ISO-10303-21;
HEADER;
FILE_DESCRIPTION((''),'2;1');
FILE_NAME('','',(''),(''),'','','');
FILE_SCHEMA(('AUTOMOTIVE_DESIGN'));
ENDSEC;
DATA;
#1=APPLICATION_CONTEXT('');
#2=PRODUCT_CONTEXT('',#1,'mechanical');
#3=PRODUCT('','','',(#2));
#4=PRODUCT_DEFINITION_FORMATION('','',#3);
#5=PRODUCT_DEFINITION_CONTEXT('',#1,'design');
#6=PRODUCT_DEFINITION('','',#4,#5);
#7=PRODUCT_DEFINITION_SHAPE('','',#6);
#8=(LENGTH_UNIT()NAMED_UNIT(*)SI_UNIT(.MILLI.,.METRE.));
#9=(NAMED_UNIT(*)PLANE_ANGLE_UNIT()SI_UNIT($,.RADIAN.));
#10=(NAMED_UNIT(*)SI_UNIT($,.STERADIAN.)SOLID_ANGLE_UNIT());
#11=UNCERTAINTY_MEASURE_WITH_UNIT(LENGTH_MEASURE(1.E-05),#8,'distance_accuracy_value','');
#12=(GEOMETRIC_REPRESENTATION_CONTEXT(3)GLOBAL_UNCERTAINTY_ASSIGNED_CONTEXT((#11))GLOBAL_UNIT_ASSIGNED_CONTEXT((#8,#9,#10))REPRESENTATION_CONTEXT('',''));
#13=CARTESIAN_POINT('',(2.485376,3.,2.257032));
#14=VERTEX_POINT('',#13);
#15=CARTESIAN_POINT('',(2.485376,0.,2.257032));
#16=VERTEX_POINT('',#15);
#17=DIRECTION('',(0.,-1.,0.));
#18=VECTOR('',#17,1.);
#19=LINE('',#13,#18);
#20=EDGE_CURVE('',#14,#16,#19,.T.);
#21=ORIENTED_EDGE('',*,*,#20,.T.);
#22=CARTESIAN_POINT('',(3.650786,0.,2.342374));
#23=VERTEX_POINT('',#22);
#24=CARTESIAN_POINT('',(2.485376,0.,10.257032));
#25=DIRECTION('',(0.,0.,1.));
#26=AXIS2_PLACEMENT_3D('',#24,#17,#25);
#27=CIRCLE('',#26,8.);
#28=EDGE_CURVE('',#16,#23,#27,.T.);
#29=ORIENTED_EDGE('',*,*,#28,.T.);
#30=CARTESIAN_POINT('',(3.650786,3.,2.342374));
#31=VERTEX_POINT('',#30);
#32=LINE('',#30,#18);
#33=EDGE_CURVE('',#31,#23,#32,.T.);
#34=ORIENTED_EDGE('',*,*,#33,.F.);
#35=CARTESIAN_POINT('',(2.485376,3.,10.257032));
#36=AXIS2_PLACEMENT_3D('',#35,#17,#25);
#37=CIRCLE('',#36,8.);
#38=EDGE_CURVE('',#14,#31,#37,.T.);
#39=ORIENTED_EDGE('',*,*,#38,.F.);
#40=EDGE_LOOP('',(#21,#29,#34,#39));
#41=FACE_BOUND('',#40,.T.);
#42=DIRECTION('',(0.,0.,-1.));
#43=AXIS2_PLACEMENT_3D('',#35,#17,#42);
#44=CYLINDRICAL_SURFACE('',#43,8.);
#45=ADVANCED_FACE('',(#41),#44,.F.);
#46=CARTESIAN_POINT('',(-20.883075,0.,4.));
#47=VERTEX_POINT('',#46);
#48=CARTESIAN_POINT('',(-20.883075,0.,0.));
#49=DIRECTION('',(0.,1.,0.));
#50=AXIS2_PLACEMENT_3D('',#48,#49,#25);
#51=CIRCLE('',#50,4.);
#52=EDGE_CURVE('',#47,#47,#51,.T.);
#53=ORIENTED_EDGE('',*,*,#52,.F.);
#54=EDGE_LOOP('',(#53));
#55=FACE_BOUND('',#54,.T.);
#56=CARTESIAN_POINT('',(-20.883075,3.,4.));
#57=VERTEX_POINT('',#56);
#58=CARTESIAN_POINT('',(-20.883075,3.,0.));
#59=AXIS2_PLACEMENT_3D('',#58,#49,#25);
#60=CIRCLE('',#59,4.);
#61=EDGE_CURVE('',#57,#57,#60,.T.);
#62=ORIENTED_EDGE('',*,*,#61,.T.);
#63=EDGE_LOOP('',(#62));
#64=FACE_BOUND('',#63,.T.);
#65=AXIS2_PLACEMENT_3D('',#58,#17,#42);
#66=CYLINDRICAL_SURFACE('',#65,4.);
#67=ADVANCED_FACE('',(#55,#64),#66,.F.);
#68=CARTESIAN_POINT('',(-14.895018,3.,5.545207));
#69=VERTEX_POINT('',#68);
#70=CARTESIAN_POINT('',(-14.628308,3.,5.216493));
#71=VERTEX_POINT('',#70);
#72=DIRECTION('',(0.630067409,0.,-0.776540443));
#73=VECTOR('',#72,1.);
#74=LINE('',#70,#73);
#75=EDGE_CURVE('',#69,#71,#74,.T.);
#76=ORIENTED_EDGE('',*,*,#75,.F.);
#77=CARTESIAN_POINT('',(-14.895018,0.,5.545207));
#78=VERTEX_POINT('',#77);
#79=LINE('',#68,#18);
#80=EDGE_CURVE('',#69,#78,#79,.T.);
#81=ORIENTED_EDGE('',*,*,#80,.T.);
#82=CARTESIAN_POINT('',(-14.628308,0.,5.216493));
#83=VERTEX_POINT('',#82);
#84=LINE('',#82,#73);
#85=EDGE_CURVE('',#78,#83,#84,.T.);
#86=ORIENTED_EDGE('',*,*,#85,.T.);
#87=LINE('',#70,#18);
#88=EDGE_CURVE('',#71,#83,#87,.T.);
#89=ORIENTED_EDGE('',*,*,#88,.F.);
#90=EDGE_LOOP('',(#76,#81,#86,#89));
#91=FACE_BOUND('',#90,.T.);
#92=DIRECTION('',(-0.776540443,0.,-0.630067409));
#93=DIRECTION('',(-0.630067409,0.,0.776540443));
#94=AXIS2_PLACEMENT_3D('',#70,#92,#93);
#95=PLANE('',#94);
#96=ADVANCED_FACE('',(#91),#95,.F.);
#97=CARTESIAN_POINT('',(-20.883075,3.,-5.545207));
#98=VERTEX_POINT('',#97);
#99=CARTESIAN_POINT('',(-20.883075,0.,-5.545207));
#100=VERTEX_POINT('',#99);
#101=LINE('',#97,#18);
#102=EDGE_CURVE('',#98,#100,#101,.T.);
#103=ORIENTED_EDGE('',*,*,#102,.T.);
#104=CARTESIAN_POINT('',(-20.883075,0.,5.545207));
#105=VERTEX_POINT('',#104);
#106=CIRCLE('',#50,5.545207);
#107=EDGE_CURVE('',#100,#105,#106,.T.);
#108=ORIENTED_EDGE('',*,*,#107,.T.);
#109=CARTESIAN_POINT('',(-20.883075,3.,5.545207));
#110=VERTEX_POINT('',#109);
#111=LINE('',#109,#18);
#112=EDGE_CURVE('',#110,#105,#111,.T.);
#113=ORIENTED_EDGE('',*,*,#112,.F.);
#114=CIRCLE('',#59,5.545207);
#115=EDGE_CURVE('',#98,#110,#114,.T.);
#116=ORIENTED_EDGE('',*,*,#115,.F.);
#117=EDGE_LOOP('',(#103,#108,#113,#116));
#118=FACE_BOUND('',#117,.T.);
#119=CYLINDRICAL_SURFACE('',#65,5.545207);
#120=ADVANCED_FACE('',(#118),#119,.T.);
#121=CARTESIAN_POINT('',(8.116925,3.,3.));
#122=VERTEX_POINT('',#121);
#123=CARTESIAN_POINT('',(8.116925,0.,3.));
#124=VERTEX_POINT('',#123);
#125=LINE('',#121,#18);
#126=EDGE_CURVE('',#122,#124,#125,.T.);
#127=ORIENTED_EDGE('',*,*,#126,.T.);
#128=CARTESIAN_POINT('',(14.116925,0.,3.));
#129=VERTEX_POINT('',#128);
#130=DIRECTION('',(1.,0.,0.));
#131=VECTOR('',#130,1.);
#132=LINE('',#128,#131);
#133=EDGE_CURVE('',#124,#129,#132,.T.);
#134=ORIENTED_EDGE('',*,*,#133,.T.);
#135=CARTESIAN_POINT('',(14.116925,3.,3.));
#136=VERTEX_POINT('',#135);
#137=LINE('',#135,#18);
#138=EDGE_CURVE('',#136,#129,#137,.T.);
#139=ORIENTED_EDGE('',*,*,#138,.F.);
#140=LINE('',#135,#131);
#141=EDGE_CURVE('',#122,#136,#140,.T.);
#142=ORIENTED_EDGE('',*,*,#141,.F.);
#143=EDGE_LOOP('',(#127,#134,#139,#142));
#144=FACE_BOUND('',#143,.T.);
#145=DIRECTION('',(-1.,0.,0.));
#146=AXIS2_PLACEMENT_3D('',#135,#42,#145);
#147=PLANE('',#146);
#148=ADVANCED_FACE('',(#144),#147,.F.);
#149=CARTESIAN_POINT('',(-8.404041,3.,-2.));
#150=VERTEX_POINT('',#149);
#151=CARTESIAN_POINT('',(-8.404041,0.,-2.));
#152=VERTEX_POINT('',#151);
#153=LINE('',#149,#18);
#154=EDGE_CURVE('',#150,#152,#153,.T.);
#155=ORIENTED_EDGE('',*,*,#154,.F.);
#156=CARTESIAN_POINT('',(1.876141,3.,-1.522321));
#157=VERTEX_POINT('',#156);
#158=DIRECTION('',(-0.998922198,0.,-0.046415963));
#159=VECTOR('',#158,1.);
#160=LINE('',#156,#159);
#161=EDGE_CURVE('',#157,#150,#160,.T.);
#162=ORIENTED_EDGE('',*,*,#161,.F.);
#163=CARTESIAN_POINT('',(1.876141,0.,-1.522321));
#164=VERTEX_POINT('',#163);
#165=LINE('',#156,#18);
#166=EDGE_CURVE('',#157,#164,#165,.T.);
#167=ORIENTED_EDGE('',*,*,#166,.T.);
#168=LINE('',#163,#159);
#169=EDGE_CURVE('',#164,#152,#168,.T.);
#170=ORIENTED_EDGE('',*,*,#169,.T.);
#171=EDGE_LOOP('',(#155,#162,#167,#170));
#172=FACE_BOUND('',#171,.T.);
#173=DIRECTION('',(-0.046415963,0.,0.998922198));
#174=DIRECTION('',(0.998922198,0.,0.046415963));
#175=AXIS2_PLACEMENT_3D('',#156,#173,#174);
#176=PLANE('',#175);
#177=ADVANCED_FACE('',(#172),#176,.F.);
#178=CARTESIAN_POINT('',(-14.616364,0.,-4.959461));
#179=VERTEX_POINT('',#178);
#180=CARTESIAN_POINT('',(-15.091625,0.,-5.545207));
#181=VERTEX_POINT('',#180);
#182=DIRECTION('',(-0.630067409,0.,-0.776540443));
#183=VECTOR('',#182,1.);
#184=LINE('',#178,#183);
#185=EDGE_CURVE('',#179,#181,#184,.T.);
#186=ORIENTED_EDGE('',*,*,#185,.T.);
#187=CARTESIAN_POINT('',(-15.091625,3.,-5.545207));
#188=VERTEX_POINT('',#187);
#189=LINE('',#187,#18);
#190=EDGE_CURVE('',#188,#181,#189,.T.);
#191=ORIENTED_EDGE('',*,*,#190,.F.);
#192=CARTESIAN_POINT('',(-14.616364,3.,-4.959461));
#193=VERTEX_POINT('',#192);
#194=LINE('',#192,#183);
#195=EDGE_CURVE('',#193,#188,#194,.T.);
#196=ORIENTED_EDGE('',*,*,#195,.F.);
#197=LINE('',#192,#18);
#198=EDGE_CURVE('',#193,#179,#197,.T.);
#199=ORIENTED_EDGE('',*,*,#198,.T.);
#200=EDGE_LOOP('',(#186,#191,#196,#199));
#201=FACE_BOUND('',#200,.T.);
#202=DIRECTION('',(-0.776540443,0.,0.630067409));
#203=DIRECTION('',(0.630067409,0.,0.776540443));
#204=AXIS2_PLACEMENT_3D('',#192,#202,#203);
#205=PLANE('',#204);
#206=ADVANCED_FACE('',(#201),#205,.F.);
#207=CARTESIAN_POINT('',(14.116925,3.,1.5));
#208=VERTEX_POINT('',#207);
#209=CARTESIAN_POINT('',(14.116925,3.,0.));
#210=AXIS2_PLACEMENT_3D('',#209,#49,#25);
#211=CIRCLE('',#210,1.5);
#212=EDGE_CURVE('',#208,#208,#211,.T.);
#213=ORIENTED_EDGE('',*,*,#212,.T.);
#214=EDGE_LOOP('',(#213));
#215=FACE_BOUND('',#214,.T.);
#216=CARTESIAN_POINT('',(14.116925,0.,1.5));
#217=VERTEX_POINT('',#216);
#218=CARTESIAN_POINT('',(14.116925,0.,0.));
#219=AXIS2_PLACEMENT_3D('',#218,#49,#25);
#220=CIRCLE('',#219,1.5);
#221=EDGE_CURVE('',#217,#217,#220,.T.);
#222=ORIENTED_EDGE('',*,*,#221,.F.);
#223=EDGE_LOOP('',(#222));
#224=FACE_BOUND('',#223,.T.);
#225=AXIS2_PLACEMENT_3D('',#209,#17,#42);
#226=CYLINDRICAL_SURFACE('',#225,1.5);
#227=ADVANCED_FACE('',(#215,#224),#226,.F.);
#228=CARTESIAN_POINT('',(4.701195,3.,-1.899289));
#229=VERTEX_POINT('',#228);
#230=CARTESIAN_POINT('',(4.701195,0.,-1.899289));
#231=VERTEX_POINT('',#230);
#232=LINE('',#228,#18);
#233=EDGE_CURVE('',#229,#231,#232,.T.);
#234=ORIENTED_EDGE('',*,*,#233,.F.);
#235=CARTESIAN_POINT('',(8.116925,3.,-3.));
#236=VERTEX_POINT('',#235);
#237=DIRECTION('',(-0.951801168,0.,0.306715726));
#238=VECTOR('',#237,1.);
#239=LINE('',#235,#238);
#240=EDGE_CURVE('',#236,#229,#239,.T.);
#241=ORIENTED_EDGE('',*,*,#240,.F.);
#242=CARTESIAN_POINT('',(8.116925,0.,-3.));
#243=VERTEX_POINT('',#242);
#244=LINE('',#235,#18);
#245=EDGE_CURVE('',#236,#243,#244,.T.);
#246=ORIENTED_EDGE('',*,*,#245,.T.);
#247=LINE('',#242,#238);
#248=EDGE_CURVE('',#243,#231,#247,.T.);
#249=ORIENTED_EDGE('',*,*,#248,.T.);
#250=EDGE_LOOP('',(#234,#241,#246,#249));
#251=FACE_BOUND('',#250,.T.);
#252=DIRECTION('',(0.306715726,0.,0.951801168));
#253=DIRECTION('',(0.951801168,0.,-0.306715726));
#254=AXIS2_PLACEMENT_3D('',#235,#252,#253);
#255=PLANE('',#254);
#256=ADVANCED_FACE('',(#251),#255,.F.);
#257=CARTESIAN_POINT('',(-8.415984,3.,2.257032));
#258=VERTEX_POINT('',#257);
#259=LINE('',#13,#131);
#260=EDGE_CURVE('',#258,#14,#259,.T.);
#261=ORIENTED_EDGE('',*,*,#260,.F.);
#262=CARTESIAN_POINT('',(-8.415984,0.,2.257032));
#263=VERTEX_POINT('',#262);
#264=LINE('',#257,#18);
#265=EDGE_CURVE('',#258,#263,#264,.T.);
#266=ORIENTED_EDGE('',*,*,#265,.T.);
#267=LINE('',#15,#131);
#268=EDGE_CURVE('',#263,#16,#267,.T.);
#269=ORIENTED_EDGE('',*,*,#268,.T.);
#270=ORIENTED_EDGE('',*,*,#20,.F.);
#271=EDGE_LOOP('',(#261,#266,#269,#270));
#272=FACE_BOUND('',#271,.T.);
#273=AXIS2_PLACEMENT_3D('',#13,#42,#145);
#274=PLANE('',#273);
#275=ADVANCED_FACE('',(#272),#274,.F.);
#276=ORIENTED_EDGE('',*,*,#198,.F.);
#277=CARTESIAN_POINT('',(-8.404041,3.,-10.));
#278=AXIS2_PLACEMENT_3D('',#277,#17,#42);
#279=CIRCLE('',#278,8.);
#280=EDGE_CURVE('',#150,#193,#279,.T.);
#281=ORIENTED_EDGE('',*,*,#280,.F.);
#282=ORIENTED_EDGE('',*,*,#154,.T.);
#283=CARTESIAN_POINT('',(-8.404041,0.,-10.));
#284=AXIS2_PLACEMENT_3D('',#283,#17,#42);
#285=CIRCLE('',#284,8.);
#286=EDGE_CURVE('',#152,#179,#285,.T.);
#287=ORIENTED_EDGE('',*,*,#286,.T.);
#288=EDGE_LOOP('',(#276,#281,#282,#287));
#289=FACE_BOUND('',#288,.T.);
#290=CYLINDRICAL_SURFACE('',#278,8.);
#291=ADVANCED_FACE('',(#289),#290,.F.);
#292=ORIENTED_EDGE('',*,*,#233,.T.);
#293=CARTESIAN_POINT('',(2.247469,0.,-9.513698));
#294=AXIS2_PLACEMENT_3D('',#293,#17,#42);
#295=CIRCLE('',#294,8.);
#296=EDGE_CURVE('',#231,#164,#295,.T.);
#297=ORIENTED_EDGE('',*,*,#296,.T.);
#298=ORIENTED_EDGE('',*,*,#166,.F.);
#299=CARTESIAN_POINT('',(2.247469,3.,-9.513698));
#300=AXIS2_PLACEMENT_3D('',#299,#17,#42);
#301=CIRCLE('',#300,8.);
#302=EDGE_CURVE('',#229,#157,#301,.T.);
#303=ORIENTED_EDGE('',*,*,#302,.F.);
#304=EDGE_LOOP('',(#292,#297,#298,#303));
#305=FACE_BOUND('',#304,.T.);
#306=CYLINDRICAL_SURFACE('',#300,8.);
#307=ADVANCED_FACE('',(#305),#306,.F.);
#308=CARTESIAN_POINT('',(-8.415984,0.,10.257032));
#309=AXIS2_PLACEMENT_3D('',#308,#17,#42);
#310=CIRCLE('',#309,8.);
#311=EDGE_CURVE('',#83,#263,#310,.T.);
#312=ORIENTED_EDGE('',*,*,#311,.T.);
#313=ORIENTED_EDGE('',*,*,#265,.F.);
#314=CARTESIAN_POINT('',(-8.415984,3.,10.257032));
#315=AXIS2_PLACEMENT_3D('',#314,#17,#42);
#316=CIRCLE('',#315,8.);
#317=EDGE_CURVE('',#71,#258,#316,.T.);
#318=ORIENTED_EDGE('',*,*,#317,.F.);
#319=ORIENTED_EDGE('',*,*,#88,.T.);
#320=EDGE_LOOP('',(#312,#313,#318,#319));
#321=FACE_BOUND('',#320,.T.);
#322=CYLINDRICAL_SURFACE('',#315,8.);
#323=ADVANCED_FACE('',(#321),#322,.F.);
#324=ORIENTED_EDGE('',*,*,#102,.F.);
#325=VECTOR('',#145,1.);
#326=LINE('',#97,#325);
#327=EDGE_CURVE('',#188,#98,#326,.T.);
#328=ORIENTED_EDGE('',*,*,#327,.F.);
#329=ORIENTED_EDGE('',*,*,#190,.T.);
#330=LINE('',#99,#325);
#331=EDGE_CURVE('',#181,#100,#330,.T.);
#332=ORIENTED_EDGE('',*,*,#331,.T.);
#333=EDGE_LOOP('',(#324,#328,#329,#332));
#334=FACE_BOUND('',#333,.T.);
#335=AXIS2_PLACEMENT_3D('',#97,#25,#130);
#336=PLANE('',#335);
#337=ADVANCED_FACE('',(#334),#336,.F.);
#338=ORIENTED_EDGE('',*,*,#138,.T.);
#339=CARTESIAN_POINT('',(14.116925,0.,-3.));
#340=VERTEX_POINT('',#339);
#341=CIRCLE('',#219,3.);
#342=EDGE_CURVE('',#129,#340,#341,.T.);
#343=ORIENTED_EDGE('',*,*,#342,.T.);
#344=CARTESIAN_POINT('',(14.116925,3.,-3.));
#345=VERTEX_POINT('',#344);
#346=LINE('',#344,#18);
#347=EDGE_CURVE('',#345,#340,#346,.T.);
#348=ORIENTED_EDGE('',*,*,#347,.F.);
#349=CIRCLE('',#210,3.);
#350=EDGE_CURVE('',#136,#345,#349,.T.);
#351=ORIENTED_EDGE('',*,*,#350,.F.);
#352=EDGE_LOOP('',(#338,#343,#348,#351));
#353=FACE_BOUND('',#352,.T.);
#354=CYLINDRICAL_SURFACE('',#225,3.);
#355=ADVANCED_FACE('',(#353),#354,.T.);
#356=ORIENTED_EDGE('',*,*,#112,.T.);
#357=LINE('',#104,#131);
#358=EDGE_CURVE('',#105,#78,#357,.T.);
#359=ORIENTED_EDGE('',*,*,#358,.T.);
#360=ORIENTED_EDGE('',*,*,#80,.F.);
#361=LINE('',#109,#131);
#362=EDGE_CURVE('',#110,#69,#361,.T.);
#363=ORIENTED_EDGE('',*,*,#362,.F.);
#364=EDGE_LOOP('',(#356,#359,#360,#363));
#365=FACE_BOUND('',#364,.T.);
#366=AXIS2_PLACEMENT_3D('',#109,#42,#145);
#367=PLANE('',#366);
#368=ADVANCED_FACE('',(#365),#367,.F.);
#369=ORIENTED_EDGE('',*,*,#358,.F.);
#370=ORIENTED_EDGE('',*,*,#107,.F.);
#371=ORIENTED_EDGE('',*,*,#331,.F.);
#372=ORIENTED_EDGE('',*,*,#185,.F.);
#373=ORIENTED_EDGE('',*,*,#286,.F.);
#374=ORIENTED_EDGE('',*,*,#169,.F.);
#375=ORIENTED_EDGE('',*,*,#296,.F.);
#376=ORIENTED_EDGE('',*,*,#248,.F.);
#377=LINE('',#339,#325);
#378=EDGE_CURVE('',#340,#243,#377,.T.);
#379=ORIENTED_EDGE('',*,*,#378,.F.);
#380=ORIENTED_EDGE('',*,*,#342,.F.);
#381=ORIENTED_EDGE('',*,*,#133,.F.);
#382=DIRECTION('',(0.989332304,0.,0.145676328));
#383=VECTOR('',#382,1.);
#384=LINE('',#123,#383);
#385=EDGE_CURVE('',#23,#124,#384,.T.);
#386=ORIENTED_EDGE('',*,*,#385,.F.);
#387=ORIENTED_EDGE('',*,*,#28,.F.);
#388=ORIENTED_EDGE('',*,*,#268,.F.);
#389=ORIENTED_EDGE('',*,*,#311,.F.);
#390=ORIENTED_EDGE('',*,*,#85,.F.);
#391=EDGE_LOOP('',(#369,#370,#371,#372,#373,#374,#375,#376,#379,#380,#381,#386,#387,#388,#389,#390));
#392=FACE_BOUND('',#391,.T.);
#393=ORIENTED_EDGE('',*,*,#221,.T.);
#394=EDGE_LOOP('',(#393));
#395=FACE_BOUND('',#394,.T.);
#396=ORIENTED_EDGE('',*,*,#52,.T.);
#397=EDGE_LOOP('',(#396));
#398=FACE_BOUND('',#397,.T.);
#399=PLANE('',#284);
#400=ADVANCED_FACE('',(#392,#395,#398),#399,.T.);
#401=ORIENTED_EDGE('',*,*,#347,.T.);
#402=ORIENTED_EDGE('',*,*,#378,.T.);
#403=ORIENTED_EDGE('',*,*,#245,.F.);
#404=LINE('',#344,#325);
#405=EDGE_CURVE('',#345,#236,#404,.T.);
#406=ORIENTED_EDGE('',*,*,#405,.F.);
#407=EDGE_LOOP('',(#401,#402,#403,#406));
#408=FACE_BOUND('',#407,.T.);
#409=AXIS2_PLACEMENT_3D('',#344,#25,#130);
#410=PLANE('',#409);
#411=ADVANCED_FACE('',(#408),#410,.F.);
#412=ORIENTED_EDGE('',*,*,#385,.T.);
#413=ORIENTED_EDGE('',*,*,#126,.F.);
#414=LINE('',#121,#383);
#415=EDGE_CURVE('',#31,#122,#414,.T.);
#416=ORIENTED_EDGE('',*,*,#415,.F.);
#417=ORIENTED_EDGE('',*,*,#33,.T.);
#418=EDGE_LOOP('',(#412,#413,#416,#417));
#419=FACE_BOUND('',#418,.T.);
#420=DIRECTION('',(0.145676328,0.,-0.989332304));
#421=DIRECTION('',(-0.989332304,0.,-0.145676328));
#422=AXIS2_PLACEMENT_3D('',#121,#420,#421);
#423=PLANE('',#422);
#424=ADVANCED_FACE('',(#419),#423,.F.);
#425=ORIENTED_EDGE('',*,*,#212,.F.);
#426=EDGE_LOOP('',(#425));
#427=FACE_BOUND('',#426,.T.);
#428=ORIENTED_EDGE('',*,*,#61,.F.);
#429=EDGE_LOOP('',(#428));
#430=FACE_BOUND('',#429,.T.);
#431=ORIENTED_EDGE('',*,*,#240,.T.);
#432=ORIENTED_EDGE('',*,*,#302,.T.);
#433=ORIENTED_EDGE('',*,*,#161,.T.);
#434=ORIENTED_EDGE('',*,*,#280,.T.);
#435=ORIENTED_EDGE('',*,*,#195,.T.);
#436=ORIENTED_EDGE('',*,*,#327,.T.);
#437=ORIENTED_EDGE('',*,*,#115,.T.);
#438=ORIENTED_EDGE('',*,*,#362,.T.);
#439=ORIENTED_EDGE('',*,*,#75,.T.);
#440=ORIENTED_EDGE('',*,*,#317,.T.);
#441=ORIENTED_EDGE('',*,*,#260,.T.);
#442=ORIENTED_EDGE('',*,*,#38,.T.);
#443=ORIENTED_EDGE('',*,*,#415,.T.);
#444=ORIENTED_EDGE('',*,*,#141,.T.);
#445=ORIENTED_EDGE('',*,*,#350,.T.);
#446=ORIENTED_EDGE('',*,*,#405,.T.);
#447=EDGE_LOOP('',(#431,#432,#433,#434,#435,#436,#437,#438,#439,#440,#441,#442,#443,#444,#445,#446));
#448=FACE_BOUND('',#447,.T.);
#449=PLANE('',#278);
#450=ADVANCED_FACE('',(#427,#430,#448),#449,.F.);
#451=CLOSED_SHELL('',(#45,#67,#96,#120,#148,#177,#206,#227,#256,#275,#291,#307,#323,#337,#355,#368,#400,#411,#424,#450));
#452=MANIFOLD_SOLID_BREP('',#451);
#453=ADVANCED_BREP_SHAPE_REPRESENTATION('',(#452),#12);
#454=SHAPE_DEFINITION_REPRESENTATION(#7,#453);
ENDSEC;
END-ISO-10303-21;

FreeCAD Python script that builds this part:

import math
import FreeCAD as App
import Part
import Sketcher
from FreeCAD import Vector
Q = App.Units.Quantity

doc = App.newDocument("Part")
body = doc.addObject("PartDesign::Body", "Body")

sketch1 = body.newObject("Sketcher::SketchObject", "Sketch")
sketch1.AttachmentSupport = (doc.getObject("XZ_Plane"), [""])
sketch1.MapMode = "FlatFace"
sketch1.addGeometry([
    Part.LineSegment(Vector(8.12, -3, 0), Vector(4.7, -1.9, 0)),
    Part.ArcOfCircle(Part.Circle(Vector(2.25, -9.51, 0), Vector(0, 0, 1), 8), math.radians(72), math.radians(93)),
    Part.LineSegment(Vector(1.88, -1.52, 0), Vector(-8.4, -2, 0)),
    Part.ArcOfCircle(Part.Circle(Vector(-8.4, -10, 0), Vector(0, 0, 1), 8), math.radians(90), math.radians(141)),
    Part.LineSegment(Vector(-14.62, -4.96, 0), Vector(-15.09, -5.55, 0)),
    Part.LineSegment(Vector(-15.09, -5.55, 0), Vector(-20.88, -5.55, 0)),
    Part.ArcOfCircle(Part.Circle(Vector(-20.88, 0, 0), Vector(0, 0, 1), 5.55), math.radians(90), math.radians(270)),
    Part.LineSegment(Vector(-20.88, 5.55, 0), Vector(-14.9, 5.55, 0)),
    Part.LineSegment(Vector(-14.9, 5.55, 0), Vector(-14.63, 5.22, 0)),
    Part.ArcOfCircle(Part.Circle(Vector(-8.42, 10.26, 0), Vector(0, 0, 1), 8), math.radians(-141), math.radians(-90)),
    Part.LineSegment(Vector(-8.42, 2.26, 0), Vector(2.49, 2.26, 0)),
    Part.ArcOfCircle(Part.Circle(Vector(2.49, 10.26, 0), Vector(0, 0, 1), 8), math.radians(-90), math.radians(-81.62)),
    Part.LineSegment(Vector(3.65, 2.34, 0), Vector(8.12, 3, 0)),
    Part.LineSegment(Vector(8.12, 3, 0), Vector(14.12, 3, 0)),
    Part.ArcOfCircle(Part.Circle(Vector(14.12, 0, 0), Vector(0, 0, 1), 3), math.radians(-90), math.radians(90)),
    Part.LineSegment(Vector(14.12, -3, 0), Vector(8.12, -3, 0)),
    Part.Circle(Vector(-20.88, 0, 0), Vector(0, 0, 1), 4),
    Part.Circle(Vector(14.12, 0, 0), Vector(0, 0, 1), 1.5),
], False)
sketch1.addConstraint([
    Sketcher.Constraint("Tangent", 0, 2, 1, 1),
    Sketcher.Constraint("Tangent", 1, 2, 2, 1),
    Sketcher.Constraint("Coincident", 2, 2, 3, 1),
    Sketcher.Constraint("Tangent", 3, 2, 4, 1),
    Sketcher.Constraint("Coincident", 4, 2, 5, 1),
    Sketcher.Constraint("Tangent", 5, 2, 6, 2),
    Sketcher.Constraint("Tangent", 6, 1, 7, 1),
    Sketcher.Constraint("Coincident", 7, 2, 8, 1),
    Sketcher.Constraint("Tangent", 8, 2, 9, 1),
    Sketcher.Constraint("Tangent", 9, 2, 10, 1),
    Sketcher.Constraint("Tangent", 10, 2, 11, 1),
    Sketcher.Constraint("Tangent", 11, 2, 12, 1),
    Sketcher.Constraint("Coincident", 12, 2, 13, 1),
    Sketcher.Constraint("Tangent", 13, 2, 14, 2),
    Sketcher.Constraint("Tangent", 14, 1, 15, 1),
    Sketcher.Constraint("Coincident", 15, 2, 0, 1),
    Sketcher.Constraint("Horizontal", 5),
    Sketcher.Constraint("Horizontal", 7),
    Sketcher.Constraint("Horizontal", 10),
    Sketcher.Constraint("Horizontal", 13),
    Sketcher.Constraint("Horizontal", 15),
    Sketcher.Constraint("Coincident", 16, 3, 6, 3),
    Sketcher.Constraint("Coincident", 17, 3, 14, 3),
    Sketcher.Constraint("Equal", 1, 3),
    Sketcher.Constraint("Equal", 3, 9),
    Sketcher.Constraint("Equal", 9, 11),
    Sketcher.Constraint("Symmetric", 12, 2, 15, 2, -1),
    Sketcher.Constraint("PointOnObject", 6, 3, -1),
    Sketcher.Constraint("Vertical", 3, 3, 2, 2),
    Sketcher.Constraint("Diameter", 16, Q("8 mm")),
    Sketcher.Constraint("Diameter", 17, Q("3 mm")),
    Sketcher.Constraint("Radius", 1, Q("8 mm")),
    Sketcher.Constraint("Radius", 14, Q("3 mm")),
    Sketcher.Constraint("DistanceX", 13, 1, 13, 2, Q("6 mm")),
    Sketcher.Constraint("DistanceY", 3, 3, -1, 1, Q("10 mm")),
    Sketcher.Constraint("DistanceX", 6, 3, 14, 3, Q("35 mm")),
    Sketcher.Constraint("Radius", 6, Q("5.545207 mm")),
    Sketcher.Constraint("Distance", 0, Q("3.588701 mm")),
    Sketcher.Constraint("Distance", 4, Q("0.754302 mm")),
    Sketcher.Constraint("DistanceX", 5, 2, 5, 1, Q("5.79145 mm")),
    Sketcher.Constraint("DistanceX", 10, 1, 10, 2, Q("10.90136 mm")),
    Sketcher.Constraint("DistanceY", 1, 3, -1, 1, Q("9.513698 mm")),
    Sketcher.Constraint("DistanceX", 7, 1, 7, 2, Q("5.988057 mm")),
    Sketcher.Constraint("DistanceX", -1, 1, 1, 3, Q("2.247469 mm")),
    Sketcher.Constraint("DistanceX", 6, 3, 9, 3, Q("12.467091 mm")),
    Sketcher.Constraint("DistanceY", 1, 3, 9, 3, Q("19.770731 mm")),
])
pad1 = body.newObject("PartDesign::Pad", "Pad")
pad1.Profile = sketch1
pad1.Length = 3
pad1.Reversed = True

doc.recompute()
